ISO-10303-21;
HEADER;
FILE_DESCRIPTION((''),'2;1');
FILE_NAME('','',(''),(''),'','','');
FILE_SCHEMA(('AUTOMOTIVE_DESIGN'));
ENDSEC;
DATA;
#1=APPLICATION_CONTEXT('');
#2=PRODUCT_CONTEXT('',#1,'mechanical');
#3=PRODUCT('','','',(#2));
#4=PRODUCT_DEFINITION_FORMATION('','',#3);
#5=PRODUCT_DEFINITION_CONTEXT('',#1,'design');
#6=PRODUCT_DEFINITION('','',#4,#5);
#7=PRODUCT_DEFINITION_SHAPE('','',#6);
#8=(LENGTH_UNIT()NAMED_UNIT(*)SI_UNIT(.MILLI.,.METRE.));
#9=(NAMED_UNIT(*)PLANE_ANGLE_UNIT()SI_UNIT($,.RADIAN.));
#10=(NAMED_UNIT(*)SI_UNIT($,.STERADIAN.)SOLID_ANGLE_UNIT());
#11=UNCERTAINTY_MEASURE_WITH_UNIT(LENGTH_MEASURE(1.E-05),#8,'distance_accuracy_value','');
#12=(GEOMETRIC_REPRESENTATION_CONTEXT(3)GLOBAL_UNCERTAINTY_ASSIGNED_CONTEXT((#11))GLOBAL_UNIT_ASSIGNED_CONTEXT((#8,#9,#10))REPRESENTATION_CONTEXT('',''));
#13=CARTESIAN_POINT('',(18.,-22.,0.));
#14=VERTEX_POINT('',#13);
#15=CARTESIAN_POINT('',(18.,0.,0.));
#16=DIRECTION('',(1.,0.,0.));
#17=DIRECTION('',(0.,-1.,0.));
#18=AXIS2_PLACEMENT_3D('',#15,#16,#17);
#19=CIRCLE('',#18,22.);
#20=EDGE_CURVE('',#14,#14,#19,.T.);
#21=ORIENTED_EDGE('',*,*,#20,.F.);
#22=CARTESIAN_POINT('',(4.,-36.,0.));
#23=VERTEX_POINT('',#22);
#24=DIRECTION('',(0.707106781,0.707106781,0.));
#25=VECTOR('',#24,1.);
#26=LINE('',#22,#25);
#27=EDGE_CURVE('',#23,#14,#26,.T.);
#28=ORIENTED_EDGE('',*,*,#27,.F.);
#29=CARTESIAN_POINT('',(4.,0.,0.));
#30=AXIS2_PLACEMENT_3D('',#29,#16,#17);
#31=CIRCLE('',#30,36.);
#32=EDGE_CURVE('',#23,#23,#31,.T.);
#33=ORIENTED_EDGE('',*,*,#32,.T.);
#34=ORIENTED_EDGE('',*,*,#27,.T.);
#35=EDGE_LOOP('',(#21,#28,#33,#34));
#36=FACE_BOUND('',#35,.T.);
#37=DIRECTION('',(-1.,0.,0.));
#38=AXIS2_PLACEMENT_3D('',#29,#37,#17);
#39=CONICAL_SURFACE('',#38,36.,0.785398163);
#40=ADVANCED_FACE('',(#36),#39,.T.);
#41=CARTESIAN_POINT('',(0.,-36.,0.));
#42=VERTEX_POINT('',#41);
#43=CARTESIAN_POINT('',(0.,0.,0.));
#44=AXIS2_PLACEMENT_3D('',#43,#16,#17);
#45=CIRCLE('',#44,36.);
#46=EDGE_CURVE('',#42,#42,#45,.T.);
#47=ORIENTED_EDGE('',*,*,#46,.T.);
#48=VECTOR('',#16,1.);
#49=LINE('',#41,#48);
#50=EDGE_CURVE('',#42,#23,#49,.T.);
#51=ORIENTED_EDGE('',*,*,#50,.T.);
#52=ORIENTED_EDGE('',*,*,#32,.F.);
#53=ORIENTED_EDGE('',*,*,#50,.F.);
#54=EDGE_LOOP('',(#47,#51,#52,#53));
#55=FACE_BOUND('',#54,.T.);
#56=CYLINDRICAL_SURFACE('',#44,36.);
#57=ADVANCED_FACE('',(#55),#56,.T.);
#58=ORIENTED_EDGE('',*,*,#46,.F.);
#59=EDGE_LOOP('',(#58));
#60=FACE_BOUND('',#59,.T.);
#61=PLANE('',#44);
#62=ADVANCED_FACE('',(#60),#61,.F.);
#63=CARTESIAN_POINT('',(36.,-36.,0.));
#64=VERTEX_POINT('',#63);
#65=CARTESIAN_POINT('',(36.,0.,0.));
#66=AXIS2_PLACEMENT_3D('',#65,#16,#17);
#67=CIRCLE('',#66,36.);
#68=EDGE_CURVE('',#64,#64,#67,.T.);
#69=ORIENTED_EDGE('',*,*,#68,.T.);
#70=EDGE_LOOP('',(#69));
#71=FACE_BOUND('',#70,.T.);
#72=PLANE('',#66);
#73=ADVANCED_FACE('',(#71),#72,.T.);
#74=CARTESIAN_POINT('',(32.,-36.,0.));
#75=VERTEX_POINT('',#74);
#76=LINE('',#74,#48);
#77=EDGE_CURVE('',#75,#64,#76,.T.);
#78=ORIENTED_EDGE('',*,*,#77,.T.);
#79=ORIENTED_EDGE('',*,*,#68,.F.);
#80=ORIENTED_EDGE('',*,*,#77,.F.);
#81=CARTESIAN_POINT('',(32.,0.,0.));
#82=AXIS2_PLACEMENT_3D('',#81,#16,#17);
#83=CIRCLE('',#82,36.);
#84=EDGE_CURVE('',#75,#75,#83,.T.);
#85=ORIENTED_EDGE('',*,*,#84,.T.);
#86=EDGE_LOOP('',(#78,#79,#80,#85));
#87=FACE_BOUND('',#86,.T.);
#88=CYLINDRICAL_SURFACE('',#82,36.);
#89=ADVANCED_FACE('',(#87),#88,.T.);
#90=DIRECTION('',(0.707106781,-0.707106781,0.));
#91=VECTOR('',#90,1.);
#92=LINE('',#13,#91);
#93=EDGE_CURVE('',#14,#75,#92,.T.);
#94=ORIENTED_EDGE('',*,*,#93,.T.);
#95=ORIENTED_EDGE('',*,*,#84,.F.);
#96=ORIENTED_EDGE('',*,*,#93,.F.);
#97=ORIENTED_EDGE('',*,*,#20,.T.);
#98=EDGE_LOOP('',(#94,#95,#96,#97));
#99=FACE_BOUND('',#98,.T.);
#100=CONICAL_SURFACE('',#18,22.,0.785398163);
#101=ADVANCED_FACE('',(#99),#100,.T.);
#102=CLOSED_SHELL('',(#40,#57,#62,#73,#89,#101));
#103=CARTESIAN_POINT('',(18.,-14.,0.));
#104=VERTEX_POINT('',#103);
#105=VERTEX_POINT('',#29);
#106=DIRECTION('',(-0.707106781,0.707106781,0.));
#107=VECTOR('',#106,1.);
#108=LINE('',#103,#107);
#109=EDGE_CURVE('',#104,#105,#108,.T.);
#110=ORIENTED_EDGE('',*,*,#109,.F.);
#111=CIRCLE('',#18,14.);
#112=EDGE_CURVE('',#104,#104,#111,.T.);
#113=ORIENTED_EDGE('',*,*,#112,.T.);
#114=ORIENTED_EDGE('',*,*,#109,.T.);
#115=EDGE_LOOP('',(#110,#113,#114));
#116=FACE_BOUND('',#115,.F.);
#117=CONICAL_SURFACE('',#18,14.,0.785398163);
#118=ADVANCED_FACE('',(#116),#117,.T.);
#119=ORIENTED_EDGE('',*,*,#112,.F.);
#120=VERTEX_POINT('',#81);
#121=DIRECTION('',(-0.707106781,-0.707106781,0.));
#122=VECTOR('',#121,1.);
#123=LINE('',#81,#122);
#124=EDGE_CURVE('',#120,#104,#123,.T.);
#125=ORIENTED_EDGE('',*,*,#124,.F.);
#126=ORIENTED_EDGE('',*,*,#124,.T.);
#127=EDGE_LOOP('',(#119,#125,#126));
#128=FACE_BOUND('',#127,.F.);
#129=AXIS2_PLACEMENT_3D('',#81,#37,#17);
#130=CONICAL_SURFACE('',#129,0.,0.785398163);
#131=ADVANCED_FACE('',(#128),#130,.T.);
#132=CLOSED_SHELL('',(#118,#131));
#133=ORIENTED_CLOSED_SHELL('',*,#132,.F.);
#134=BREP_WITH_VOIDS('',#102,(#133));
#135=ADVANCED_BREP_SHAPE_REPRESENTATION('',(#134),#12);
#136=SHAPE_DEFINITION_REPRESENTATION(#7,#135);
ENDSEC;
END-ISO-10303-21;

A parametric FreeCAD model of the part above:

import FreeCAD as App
import Part
import Sketcher

V = App.Vector
Q = App.Units.Quantity

doc = App.newDocument("Part")
body = doc.addObject("PartDesign::Body", "Body")

# Sketch on XY plane
sketch1 = body.newObject("Sketcher::SketchObject", "Sketch")
sketch1.AttachmentSupport = (doc.getObject("XY_Plane"), [""])
sketch1.MapMode = "FlatFace"
sketch1.addGeometry([
    Part.LineSegment(V(4, 0, 0), V(0, 0, 0)),  # 0
    Part.LineSegment(V(0, 0, 0), V(0, -36, 0)),  # 1
    Part.LineSegment(V(0, -36, 0), V(4, -36, 0)),  # 2
    Part.LineSegment(V(4, -36, 0), V(18, -22, 0)),  # 3
    Part.LineSegment(V(18, -22, 0), V(32, -36, 0)),  # 4
    Part.LineSegment(V(32, -36, 0), V(36, -36, 0)),  # 5
    Part.LineSegment(V(36, -36, 0), V(36, 0, 0)),  # 6
    Part.LineSegment(V(36, 0, 0), V(32, 0, 0)),  # 7
    Part.LineSegment(V(32, 0, 0), V(18, -14, 0)),  # 8
    Part.LineSegment(V(18, -14, 0), V(4, 0, 0)),  # 9
], False)
sketch1.addConstraint([
    Sketcher.Constraint("Coincident", 0, 2, 1, 1),
    Sketcher.Constraint("Coincident", 1, 2, 2, 1),
    Sketcher.Constraint("Coincident", 2, 2, 3, 1),
    Sketcher.Constraint("Coincident", 3, 2, 4, 1),
    Sketcher.Constraint("Coincident", 4, 2, 5, 1),
    Sketcher.Constraint("Coincident", 5, 2, 6, 1),
    Sketcher.Constraint("Coincident", 6, 2, 7, 1),
    Sketcher.Constraint("Coincident", 7, 2, 8, 1),
    Sketcher.Constraint("Coincident", 8, 2, 9, 1),
    Sketcher.Constraint("Coincident", 9, 2, 0, 1),
    Sketcher.Constraint("Horizontal", 0),
    Sketcher.Constraint("Vertical", 1),
    Sketcher.Constraint("Horizontal", 2),
    Sketcher.Constraint("Horizontal", 5),
    Sketcher.Constraint("Vertical", 6),
    Sketcher.Constraint("Horizontal", 7),
    Sketcher.Constraint("Coincident", 0, 2, -1, 1),
    Sketcher.Constraint("PointOnObject", 6, 2, -1),
    Sketcher.Constraint("Perpendicular", 3, 4),
    Sketcher.Constraint("Perpendicular", 4, 8),
    Sketcher.Constraint("Perpendicular", 8, 9),
    Sketcher.Constraint("Horizontal", 2, 2, 4, 2),
    Sketcher.Constraint("Vertical", 4, 2, 7, 2),
    Sketcher.Constraint("Vertical", 3, 2, 8, 2),
    Sketcher.Constraint("Vertical", 2, 2, 9, 2),
    Sketcher.Constraint("Equal", 2, 5),
    Sketcher.Constraint("DistanceX", 0, 2, 0, 1, Q("4 mm")),
    Sketcher.Constraint("DistanceY", 1, 2, 1, 1, Q("36 mm")),
    Sketcher.Constraint("DistanceX", -1, 1, 3, 2, Q("18 mm")),
])
revolution = body.newObject("PartDesign::Revolution", "Revolution")
revolution.Profile = sketch1
revolution.ReferenceAxis = (sketch1, ["H_Axis"])
revolution.Angle = 360

doc.recompute()
